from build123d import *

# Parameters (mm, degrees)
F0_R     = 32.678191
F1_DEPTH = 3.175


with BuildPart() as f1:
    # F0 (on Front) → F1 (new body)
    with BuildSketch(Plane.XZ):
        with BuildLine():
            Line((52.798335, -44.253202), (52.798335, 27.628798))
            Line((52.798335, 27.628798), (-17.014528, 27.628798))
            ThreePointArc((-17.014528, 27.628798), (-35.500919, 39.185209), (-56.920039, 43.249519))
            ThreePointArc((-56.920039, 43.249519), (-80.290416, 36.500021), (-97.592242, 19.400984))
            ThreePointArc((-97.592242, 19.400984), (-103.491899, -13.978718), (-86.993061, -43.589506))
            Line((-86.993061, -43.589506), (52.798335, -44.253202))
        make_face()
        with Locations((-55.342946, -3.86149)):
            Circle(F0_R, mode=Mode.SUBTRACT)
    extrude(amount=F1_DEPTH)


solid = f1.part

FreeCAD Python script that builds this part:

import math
import FreeCAD as App
import Part
import Sketcher
Q = App.Units.Quantity

doc = App.newDocument("Part")
params = doc.addObject("Spreadsheet::Sheet", "Params")
for row, (alias, value) in enumerate([
    ("sketch1_height", "2.83 in"),
    ("pad1_length", "0.125 in"),
], start=1):
    params.set(f"A{row}", alias)
    params.set(f"B{row}", "=" + value)
    params.setAlias(f"B{row}", alias)

body = doc.addObject("PartDesign::Body", "Body")

sketch1 = doc.addObject("Sketcher::SketchObject", "Sketch")
body.addObject(sketch1)
sketch1.AttachmentSupport = (doc.XZ_Plane, [""])
sketch1.MapMode = "FlatFace"
sketch1.addGeometry([
    Part.LineSegment(App.Vector(53, -44, 0), App.Vector(53, 28, 0)),
    Part.LineSegment(App.Vector(53, 28, 0), App.Vector(-17, 28, 0)),
    Part.ArcOfCircle(Part.Circle(App.Vector(-57, -16, 0), App.Vector(0, 0, 1), 59), math.radians(47), math.radians(90)),
    Part.ArcOfCircle(Part.Circle(App.Vector(-55, -6, 0), App.Vector(0, 0, 1), 49), math.radians(92), math.radians(149)),
    Part.ArcOfCircle(Part.Circle(App.Vector(-54, -6, 0), App.Vector(0, 0, 1), 51), math.radians(150), math.radians(229)),
    Part.LineSegment(App.Vector(-87, -44, 0), App.Vector(53, -44, 0)),
    Part.Circle(App.Vector(-55, -4, 0), App.Vector(0, 0, 1), 33),
], False)
sketch1.addConstraint([
    Sketcher.Constraint("Coincident", 0, 2, 1, 1),
    Sketcher.Constraint("Coincident", 1, 2, 2, 1),
    Sketcher.Constraint("Coincident", 2, 2, 3, 1),
    Sketcher.Constraint("Coincident", 3, 2, 4, 1),
    Sketcher.Constraint("Coincident", 4, 2, 5, 1),
    Sketcher.Constraint("Coincident", 5, 2, 0, 1),
    Sketcher.Constraint("Vertical", 0),
    Sketcher.Constraint("Horizontal", 1),
    Sketcher.Constraint("DistanceY", 0, 1, 0, 2, Q("2.83 in")),
    Sketcher.Constraint("Radius", 4, Q("50.587399 mm")),
    Sketcher.Constraint("Diameter", 6, Q("65.356382 mm")),
    Sketcher.Constraint("Radius", 2, Q("59.075069 mm")),
    Sketcher.Constraint("Radius", 3, Q("49.321084 mm")),
    Sketcher.Constraint("DistanceY", -1, 1, 0, 2, Q("27.628798 mm")),
    Sketcher.Constraint("Distance", 5, Q("139.792972 mm")),
    Sketcher.Constraint("DistanceX", 1, 2, 1, 1, Q("69.812863 mm")),
    Sketcher.Constraint("DistanceY", 2, 3, -1, 1, Q("15.825439 mm")),
    Sketcher.Constraint("DistanceX", 3, 3, -1, 1, Q("55.342948 mm")),
    Sketcher.Constraint("DistanceY", 6, 3, -1, 1, Q("3.86149 mm")),
    Sketcher.Constraint("DistanceX", 2, 2, -1, 1, Q("56.920039 mm")),
    Sketcher.Constraint("DistanceX", 3, 2, -1, 1, Q("97.592242 mm")),
    Sketcher.Constraint("DistanceX", 4, 2, -1, 1, Q("86.993061 mm")),
    Sketcher.Constraint("DistanceX", 3, 3, 4, 3, Q("1.737151 mm")),
    Sketcher.Constraint("DistanceX", 6, 3, 4, 3, Q("1.737149 mm")),
])
sketch1.setExpression("Constraints[8]", "Params.sketch1_height")
pad1 = doc.addObject("PartDesign::Pad", "Pad")
body.addObject(pad1)
pad1.Profile = sketch1
pad1.setExpression("Length", "Params.pad1_length")

doc.recompute()
